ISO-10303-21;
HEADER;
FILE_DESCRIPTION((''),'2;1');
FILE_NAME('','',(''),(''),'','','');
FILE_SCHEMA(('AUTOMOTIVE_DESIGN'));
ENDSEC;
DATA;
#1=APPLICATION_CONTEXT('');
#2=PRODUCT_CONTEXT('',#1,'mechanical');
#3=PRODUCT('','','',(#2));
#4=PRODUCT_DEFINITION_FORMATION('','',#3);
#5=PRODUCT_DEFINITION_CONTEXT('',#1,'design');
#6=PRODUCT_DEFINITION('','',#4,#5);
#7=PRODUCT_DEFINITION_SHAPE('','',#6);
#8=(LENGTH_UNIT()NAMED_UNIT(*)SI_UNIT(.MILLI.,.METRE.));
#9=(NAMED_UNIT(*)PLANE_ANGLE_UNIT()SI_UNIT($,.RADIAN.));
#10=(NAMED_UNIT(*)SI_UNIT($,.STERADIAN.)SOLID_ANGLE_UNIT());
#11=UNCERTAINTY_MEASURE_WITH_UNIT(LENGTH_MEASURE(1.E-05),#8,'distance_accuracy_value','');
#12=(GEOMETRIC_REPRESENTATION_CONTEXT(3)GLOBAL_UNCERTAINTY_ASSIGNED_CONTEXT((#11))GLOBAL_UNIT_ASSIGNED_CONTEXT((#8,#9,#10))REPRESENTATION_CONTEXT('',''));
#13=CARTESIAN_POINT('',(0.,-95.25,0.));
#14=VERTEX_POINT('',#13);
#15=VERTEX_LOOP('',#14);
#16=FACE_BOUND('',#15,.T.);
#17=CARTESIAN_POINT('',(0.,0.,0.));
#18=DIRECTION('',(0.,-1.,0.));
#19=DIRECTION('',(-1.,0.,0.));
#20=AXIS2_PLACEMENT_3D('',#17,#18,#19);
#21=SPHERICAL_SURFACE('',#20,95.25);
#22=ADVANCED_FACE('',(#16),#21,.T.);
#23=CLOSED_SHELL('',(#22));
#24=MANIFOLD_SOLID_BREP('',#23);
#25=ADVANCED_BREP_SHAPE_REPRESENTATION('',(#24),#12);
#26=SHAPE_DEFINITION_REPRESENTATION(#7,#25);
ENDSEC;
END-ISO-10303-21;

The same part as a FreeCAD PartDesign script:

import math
import FreeCAD as App
import Part
import Sketcher
from FreeCAD import Vector
Q = App.Units.Quantity

doc = App.newDocument("Part")
body = doc.addObject("PartDesign::Body", "Body")

# Sketch on XY plane
sketch1 = body.newObject("Sketcher::SketchObject", "Sketch")
sketch1.AttachmentSupport = (doc.getObject("XY_Plane"), [""])
sketch1.MapMode = "FlatFace"
sketch1.addGeometry(Part.LineSegment(Vector(0, -95, 0), Vector(0, 95, 0)), False)
sketch1.addGeometry(Part.ArcOfCircle(Part.Circle(Vector(0, 0, 0), Vector(0, 0, 1), 95), math.radians(90), math.radians(270)), False)
sketch1.addConstraint(Sketcher.Constraint("Coincident", 0, 1, 1, 2))
sketch1.addConstraint(Sketcher.Constraint("Coincident", 1, 1, 0, 2))
sketch1.addConstraint(Sketcher.Constraint("Vertical", 0))
sketch1.addConstraint(Sketcher.Constraint("Coincident", 1, 3, -1, 1))
sketch1.addConstraint(Sketcher.Constraint("PointOnObject", 0, 1, -2))
sketch1.addConstraint(Sketcher.Constraint("Radius", 1, Q("3.75 in")))
revolution = body.newObject("PartDesign::Revolution", "Revolution")
revolution.Profile = sketch1
revolution.ReferenceAxis = (sketch1, ["V_Axis"])
revolution.Angle = 360

doc.recompute()
